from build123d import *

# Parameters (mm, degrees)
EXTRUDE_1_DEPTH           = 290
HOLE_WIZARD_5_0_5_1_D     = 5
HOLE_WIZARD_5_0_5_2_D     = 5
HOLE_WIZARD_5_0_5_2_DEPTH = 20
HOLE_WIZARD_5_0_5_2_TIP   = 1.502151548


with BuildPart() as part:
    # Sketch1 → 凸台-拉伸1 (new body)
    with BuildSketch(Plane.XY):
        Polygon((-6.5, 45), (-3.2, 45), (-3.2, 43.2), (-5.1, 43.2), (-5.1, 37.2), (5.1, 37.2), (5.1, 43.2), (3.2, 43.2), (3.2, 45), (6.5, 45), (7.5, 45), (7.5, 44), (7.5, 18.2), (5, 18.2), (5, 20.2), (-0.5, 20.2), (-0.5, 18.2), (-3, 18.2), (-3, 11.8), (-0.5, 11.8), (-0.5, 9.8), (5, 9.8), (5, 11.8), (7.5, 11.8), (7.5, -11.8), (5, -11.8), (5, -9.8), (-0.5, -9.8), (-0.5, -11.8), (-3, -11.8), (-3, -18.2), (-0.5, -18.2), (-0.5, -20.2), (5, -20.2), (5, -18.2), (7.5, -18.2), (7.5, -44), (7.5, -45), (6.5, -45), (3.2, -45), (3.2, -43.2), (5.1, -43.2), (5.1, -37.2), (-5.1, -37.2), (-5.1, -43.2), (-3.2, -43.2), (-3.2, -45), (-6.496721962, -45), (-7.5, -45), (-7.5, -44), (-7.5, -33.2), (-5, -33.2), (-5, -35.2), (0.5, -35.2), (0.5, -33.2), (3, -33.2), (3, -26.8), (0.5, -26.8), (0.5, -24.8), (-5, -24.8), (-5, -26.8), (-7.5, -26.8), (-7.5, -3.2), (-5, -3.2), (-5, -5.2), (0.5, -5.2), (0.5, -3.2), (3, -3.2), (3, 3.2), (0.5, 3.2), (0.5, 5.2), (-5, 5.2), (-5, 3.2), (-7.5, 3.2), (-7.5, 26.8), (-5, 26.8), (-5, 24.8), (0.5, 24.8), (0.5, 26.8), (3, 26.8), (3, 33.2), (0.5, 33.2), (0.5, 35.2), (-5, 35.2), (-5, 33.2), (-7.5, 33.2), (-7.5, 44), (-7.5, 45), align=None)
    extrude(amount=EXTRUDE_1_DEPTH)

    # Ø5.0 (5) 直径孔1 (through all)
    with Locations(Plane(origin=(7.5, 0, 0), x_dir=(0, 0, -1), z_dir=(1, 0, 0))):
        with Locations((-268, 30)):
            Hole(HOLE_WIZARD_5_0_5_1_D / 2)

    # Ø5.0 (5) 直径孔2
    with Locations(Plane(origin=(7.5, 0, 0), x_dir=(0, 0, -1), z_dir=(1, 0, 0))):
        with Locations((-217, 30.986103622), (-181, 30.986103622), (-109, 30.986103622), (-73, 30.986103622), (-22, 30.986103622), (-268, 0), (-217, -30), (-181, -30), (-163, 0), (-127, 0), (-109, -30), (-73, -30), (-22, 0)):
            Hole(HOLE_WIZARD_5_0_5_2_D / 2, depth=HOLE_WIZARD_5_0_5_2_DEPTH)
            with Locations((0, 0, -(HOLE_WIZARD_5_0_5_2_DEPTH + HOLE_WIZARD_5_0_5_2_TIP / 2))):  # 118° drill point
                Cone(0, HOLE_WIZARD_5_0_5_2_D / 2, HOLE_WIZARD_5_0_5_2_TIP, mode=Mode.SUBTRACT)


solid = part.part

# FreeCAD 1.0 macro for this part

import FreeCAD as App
import Part
import Sketcher

V = App.Vector
Q = App.Units.Quantity

doc = App.newDocument("Part")
body = doc.addObject("PartDesign::Body", "Body")

sketch1 = doc.addObject("Sketcher::SketchObject", "Sketch")
body.addObject(sketch1)
sketch1.AttachmentSupport = (doc.XY_Plane, [""])
sketch1.MapMode = "FlatFace"
sketch1.addGeometry([
    Part.LineSegment(V(-3.2, 45, 0), V(-7.5, 45, 0)),
    Part.LineSegment(V(-7.5, 45, 0), V(-7.5, 33.2, 0)),
    Part.LineSegment(V(-7.5, 33.2, 0), V(-5, 33.2, 0)),
    Part.LineSegment(V(-5, 33.2, 0), V(-5, 35.2, 0)),
    Part.LineSegment(V(-5, 35.2, 0), V(0.5, 35.2, 0)),
    Part.LineSegment(V(0.5, 35.2, 0), V(0.5, 33.2, 0)),
    Part.LineSegment(V(0.5, 33.2, 0), V(3, 33.2, 0)),
    Part.LineSegment(V(3, 33.2, 0), V(3, 26.8, 0)),
    Part.LineSegment(V(3, 26.8, 0), V(0.5, 26.8, 0)),
    Part.LineSegment(V(0.5, 26.8, 0), V(0.5, 24.8, 0)),
    Part.LineSegment(V(0.5, 24.8, 0), V(-5, 24.8, 0)),
    Part.LineSegment(V(-5, 24.8, 0), V(-5, 26.8, 0)),
    Part.LineSegment(V(-5, 26.8, 0), V(-7.5, 26.8, 0)),
    Part.LineSegment(V(-7.5, 26.8, 0), V(-7.5, 3.2, 0)),
    Part.LineSegment(V(-7.5, 3.2, 0), V(-5, 3.2, 0)),
    Part.LineSegment(V(-5, 3.2, 0), V(-5, 5.2, 0)),
    Part.LineSegment(V(-5, 5.2, 0), V(0.5, 5.2, 0)),
    Part.LineSegment(V(0.5, 5.2, 0), V(0.5, 3.2, 0)),
    Part.LineSegment(V(0.5, 3.2, 0), V(3, 3.2, 0)),
    Part.LineSegment(V(3, 3.2, 0), V(3, -3.2, 0)),
    Part.LineSegment(V(3, -3.2, 0), V(0.5, -3.2, 0)),
    Part.LineSegment(V(0.5, -3.2, 0), V(0.5, -5.2, 0)),
    Part.LineSegment(V(0.5, -5.2, 0), V(-5, -5.2, 0)),
    Part.LineSegment(V(-5, -5.2, 0), V(-5, -3.2, 0)),
    Part.LineSegment(V(-5, -3.2, 0), V(-7.5, -3.2, 0)),
    Part.LineSegment(V(-7.5, -3.2, 0), V(-7.5, -26.8, 0)),
    Part.LineSegment(V(-7.5, -26.8, 0), V(-5, -26.8, 0)),
    Part.LineSegment(V(-5, -26.8, 0), V(-5, -24.8, 0)),
    Part.LineSegment(V(-5, -24.8, 0), V(0.5, -24.8, 0)),
    Part.LineSegment(V(0.5, -24.8, 0), V(0.5, -26.8, 0)),
    Part.LineSegment(V(0.5, -26.8, 0), V(3, -26.8, 0)),
    Part.LineSegment(V(3, -26.8, 0), V(3, -33.2, 0)),
    Part.LineSegment(V(3, -33.2, 0), V(0.5, -33.2, 0)),
    Part.LineSegment(V(0.5, -33.2, 0), V(0.5, -35.2, 0)),
    Part.LineSegment(V(0.5, -35.2, 0), V(-5, -35.2, 0)),
    Part.LineSegment(V(-5, -35.2, 0), V(-5, -33.2, 0)),
    Part.LineSegment(V(-5, -33.2, 0), V(-7.5, -33.2, 0)),
    Part.LineSegment(V(-7.5, -33.2, 0), V(-7.5, -45, 0)),
    Part.LineSegment(V(-7.5, -45, 0), V(-3.2, -45, 0)),
    Part.LineSegment(V(-3.2, -45, 0), V(-3.2, -43.2, 0)),
    Part.LineSegment(V(-3.2, -43.2, 0), V(-5.1, -43.2, 0)),
    Part.LineSegment(V(-5.1, -43.2, 0), V(-5.1, -37.2, 0)),
    Part.LineSegment(V(-5.1, -37.2, 0), V(5.1, -37.2, 0)),
    Part.LineSegment(V(5.1, -37.2, 0), V(5.1, -43.2, 0)),
    Part.LineSegment(V(5.1, -43.2, 0), V(3.2, -43.2, 0)),
    Part.LineSegment(V(3.2, -43.2, 0), V(3.2, -45, 0)),
    Part.LineSegment(V(3.2, -45, 0), V(7.5, -45, 0)),
    Part.LineSegment(V(7.5, -45, 0), V(7.5, -18.2, 0)),
    Part.LineSegment(V(7.5, -18.2, 0), V(5, -18.2, 0)),
    Part.LineSegment(V(5, -18.2, 0), V(5, -20.2, 0)),
    Part.LineSegment(V(5, -20.2, 0), V(-0.5, -20.2, 0)),
    Part.LineSegment(V(-0.5, -20.2, 0), V(-0.5, -18.2, 0)),
    Part.LineSegment(V(-0.5, -18.2, 0), V(-3, -18.2, 0)),
    Part.LineSegment(V(-3, -18.2, 0), V(-3, -11.8, 0)),
    Part.LineSegment(V(-3, -11.8, 0), V(-0.5, -11.8, 0)),
    Part.LineSegment(V(-0.5, -11.8, 0), V(-0.5, -9.8, 0)),
    Part.LineSegment(V(-0.5, -9.8, 0), V(5, -9.8, 0)),
    Part.LineSegment(V(5, -9.8, 0), V(5, -11.8, 0)),
    Part.LineSegment(V(5, -11.8, 0), V(7.5, -11.8, 0)),
    Part.LineSegment(V(7.5, -11.8, 0), V(7.5, 11.8, 0)),
    Part.LineSegment(V(7.5, 11.8, 0), V(5, 11.8, 0)),
    Part.LineSegment(V(5, 11.8, 0), V(5, 9.8, 0)),
    Part.LineSegment(V(5, 9.8, 0), V(-0.5, 9.8, 0)),
    Part.LineSegment(V(-0.5, 9.8, 0), V(-0.5, 11.8, 0)),
    Part.LineSegment(V(-0.5, 11.8, 0), V(-3, 11.8, 0)),
    Part.LineSegment(V(-3, 11.8, 0), V(-3, 18.2, 0)),
    Part.LineSegment(V(-3, 18.2, 0), V(-0.5, 18.2, 0)),
    Part.LineSegment(V(-0.5, 18.2, 0), V(-0.5, 20.2, 0)),
    Part.LineSegment(V(-0.5, 20.2, 0), V(5, 20.2, 0)),
    Part.LineSegment(V(5, 20.2, 0), V(5, 18.2, 0)),
    Part.LineSegment(V(5, 18.2, 0), V(7.5, 18.2, 0)),
    Part.LineSegment(V(7.5, 18.2, 0), V(7.5, 45, 0)),
    Part.LineSegment(V(7.5, 45, 0), V(3.2, 45, 0)),
    Part.LineSegment(V(3.2, 45, 0), V(3.2, 43.2, 0)),
    Part.LineSegment(V(3.2, 43.2, 0), V(5.1, 43.2, 0)),
    Part.LineSegment(V(5.1, 43.2, 0), V(5.1, 37.2, 0)),
    Part.LineSegment(V(5.1, 37.2, 0), V(-5.1, 37.2, 0)),
    Part.LineSegment(V(-5.1, 37.2, 0), V(-5.1, 43.2, 0)),
    Part.LineSegment(V(-5.1, 43.2, 0), V(-3.2, 43.2, 0)),
    Part.LineSegment(V(-3.2, 43.2, 0), V(-3.2, 45, 0)),
], False)
sketch1.addConstraint([
    Sketcher.Constraint("Coincident", 0, 2, 1, 1),
    Sketcher.Constraint("Coincident", 1, 2, 2, 1),
    Sketcher.Constraint("Coincident", 2, 2, 3, 1),
    Sketcher.Constraint("Coincident", 3, 2, 4, 1),
    Sketcher.Constraint("Coincident", 4, 2, 5, 1),
    Sketcher.Constraint("Coincident", 5, 2, 6, 1),
    Sketcher.Constraint("Coincident", 6, 2, 7, 1),
    Sketcher.Constraint("Coincident", 7, 2, 8, 1),
    Sketcher.Constraint("Coincident", 8, 2, 9, 1),
    Sketcher.Constraint("Coincident", 9, 2, 10, 1),
    Sketcher.Constraint("Coincident", 10, 2, 11, 1),
    Sketcher.Constraint("Coincident", 11, 2, 12, 1),
    Sketcher.Constraint("Coincident", 12, 2, 13, 1),
    Sketcher.Constraint("Coincident", 13, 2, 14, 1),
    Sketcher.Constraint("Coincident", 14, 2, 15, 1),
    Sketcher.Constraint("Coincident", 15, 2, 16, 1),
    Sketcher.Constraint("Coincident", 16, 2, 17, 1),
    Sketcher.Constraint("Coincident", 17, 2, 18, 1),
    Sketcher.Constraint("Coincident", 18, 2, 19, 1),
    Sketcher.Constraint("Coincident", 19, 2, 20, 1),
    Sketcher.Constraint("Coincident", 20, 2, 21, 1),
    Sketcher.Constraint("Coincident", 21, 2, 22, 1),
    Sketcher.Constraint("Coincident", 22, 2, 23, 1),
    Sketcher.Constraint("Coincident", 23, 2, 24, 1),
    Sketcher.Constraint("Coincident", 24, 2, 25, 1),
    Sketcher.Constraint("Coincident", 25, 2, 26, 1),
    Sketcher.Constraint("Coincident", 26, 2, 27, 1),
    Sketcher.Constraint("Coincident", 27, 2, 28, 1),
    Sketcher.Constraint("Coincident", 28, 2, 29, 1),
    Sketcher.Constraint("Coincident", 29, 2, 30, 1),
    Sketcher.Constraint("Coincident", 30, 2, 31, 1),
    Sketcher.Constraint("Coincident", 31, 2, 32, 1),
    Sketcher.Constraint("Coincident", 32, 2, 33, 1),
    Sketcher.Constraint("Coincident", 33, 2, 34, 1),
    Sketcher.Constraint("Coincident", 34, 2, 35, 1),
    Sketcher.Constraint("Coincident", 35, 2, 36, 1),
    Sketcher.Constraint("Coincident", 36, 2, 37, 1),
    Sketcher.Constraint("Coincident", 37, 2, 38, 1),
    Sketcher.Constraint("Coincident", 38, 2, 39, 1),
    Sketcher.Constraint("Coincident", 39, 2, 40, 1),
    Sketcher.Constraint("Coincident", 40, 2, 41, 1),
    Sketcher.Constraint("Coincident", 41, 2, 42, 1),
    Sketcher.Constraint("Coincident", 42, 2, 43, 1),
    Sketcher.Constraint("Coincident", 43, 2, 44, 1),
    Sketcher.Constraint("Coincident", 44, 2, 45, 1),
    Sketcher.Constraint("Coincident", 45, 2, 46, 1),
    Sketcher.Constraint("Coincident", 46, 2, 47, 1),
    Sketcher.Constraint("Coincident", 47, 2, 48, 1),
    Sketcher.Constraint("Coincident", 48, 2, 49, 1),
    Sketcher.Constraint("Coincident", 49, 2, 50, 1),
    Sketcher.Constraint("Coincident", 50, 2, 51, 1),
    Sketcher.Constraint("Coincident", 51, 2, 52, 1),
    Sketcher.Constraint("Coincident", 52, 2, 53, 1),
    Sketcher.Constraint("Coincident", 53, 2, 54, 1),
    Sketcher.Constraint("Coincident", 54, 2, 55, 1),
    Sketcher.Constraint("Coincident", 55, 2, 56, 1),
    Sketcher.Constraint("Coincident", 56, 2, 57, 1),
    Sketcher.Constraint("Coincident", 57, 2, 58, 1),
    Sketcher.Constraint("Coincident", 58, 2, 59, 1),
    Sketcher.Constraint("Coincident", 59, 2, 60, 1),
    Sketcher.Constraint("Coincident", 60, 2, 61, 1),
    Sketcher.Constraint("Coincident", 61, 2, 62, 1),
    Sketcher.Constraint("Coincident", 62, 2, 63, 1),
    Sketcher.Constraint("Coincident", 63, 2, 64, 1),
    Sketcher.Constraint("Coincident", 64, 2, 65, 1),
    Sketcher.Constraint("Coincident", 65, 2, 66, 1),
    Sketcher.Constraint("Coincident", 66, 2, 67, 1),
    Sketcher.Constraint("Coincident", 67, 2, 68, 1),
    Sketcher.Constraint("Coincident", 68, 2, 69, 1),
    Sketcher.Constraint("Coincident", 69, 2, 70, 1),
    Sketcher.Constraint("Coincident", 70, 2, 71, 1),
    Sketcher.Constraint("Coincident", 71, 2, 72, 1),
    Sketcher.Constraint("Coincident", 72, 2, 73, 1),
    Sketcher.Constraint("Coincident", 73, 2, 74, 1),
    Sketcher.Constraint("Coincident", 74, 2, 75, 1),
    Sketcher.Constraint("Coincident", 75, 2, 76, 1),
    Sketcher.Constraint("Coincident", 76, 2, 77, 1),
    Sketcher.Constraint("Coincident", 77, 2, 78, 1),
    Sketcher.Constraint("Coincident", 78, 2, 79, 1),
    Sketcher.Constraint("Coincident", 79, 2, 0, 1),
    Sketcher.Constraint("Horizontal", 0),
    Sketcher.Constraint("Vertical", 1),
    Sketcher.Constraint("Horizontal", 2),
    Sketcher.Constraint("Vertical", 3),
    Sketcher.Constraint("Horizontal", 4),
    Sketcher.Constraint("Vertical", 5),
    Sketcher.Constraint("Horizontal", 6),
    Sketcher.Constraint("Vertical", 7),
    Sketcher.Constraint("Horizontal", 8),
    Sketcher.Constraint("Vertical", 9),
    Sketcher.Constraint("Horizontal", 10),
    Sketcher.Constraint("Vertical", 11),
    Sketcher.Constraint("Horizontal", 12),
    Sketcher.Constraint("Vertical", 13),
    Sketcher.Constraint("Horizontal", 14),
    Sketcher.Constraint("Vertical", 15),
    Sketcher.Constraint("Horizontal", 16),
    Sketcher.Constraint("Vertical", 17),
    Sketcher.Constraint("Horizontal", 18),
    Sketcher.Constraint("Vertical", 19),
    Sketcher.Constraint("Horizontal", 20),
    Sketcher.Constraint("Vertical", 21),
    Sketcher.Constraint("Horizontal", 22),
    Sketcher.Constraint("Vertical", 23),
    Sketcher.Constraint("Horizontal", 24),
    Sketcher.Constraint("Vertical", 25),
    Sketcher.Constraint("Horizontal", 26),
    Sketcher.Constraint("Vertical", 27),
    Sketcher.Constraint("Horizontal", 28),
    Sketcher.Constraint("Vertical", 29),
    Sketcher.Constraint("Horizontal", 30),
    Sketcher.Constraint("Vertical", 31),
    Sketcher.Constraint("Horizontal", 32),
    Sketcher.Constraint("Vertical", 33),
    Sketcher.Constraint("Horizontal", 34),
    Sketcher.Constraint("Vertical", 35),
    Sketcher.Constraint("Horizontal", 36),
    Sketcher.Constraint("Vertical", 37),
    Sketcher.Constraint("Horizontal", 38),
    Sketcher.Constraint("Vertical", 39),
    Sketcher.Constraint("Horizontal", 40),
    Sketcher.Constraint("Vertical", 41),
    Sketcher.Constraint("Horizontal", 42),
    Sketcher.Constraint("Vertical", 43),
    Sketcher.Constraint("Horizontal", 44),
    Sketcher.Constraint("Vertical", 45),
    Sketcher.Constraint("Horizontal", 46),
    Sketcher.Constraint("Vertical", 47),
    Sketcher.Constraint("Horizontal", 48),
    Sketcher.Constraint("Vertical", 49),
    Sketcher.Constraint("Horizontal", 50),
    Sketcher.Constraint("Vertical", 51),
    Sketcher.Constraint("Horizontal", 52),
    Sketcher.Constraint("Vertical", 53),
    Sketcher.Constraint("Horizontal", 54),
    Sketcher.Constraint("Vertical", 55),
    Sketcher.Constraint("Horizontal", 56),
    Sketcher.Constraint("Vertical", 57),
    Sketcher.Constraint("Horizontal", 58),
    Sketcher.Constraint("Vertical", 59),
    Sketcher.Constraint("Horizontal", 60),
    Sketcher.Constraint("Vertical", 61),
    Sketcher.Constraint("Horizontal", 62),
    Sketcher.Constraint("Vertical", 63),
    Sketcher.Constraint("Horizontal", 64),
    Sketcher.Constraint("Vertical", 65),
    Sketcher.Constraint("Horizontal", 66),
    Sketcher.Constraint("Vertical", 67),
    Sketcher.Constraint("Horizontal", 68),
    Sketcher.Constraint("Vertical", 69),
    Sketcher.Constraint("Horizontal", 70),
    Sketcher.Constraint("Vertical", 71),
    Sketcher.Constraint("Horizontal", 72),
    Sketcher.Constraint("Vertical", 73),
    Sketcher.Constraint("Horizontal", 74),
    Sketcher.Constraint("Vertical", 75),
    Sketcher.Constraint("Horizontal", 76),
    Sketcher.Constraint("Vertical", 77),
    Sketcher.Constraint("Horizontal", 78),
    Sketcher.Constraint("Vertical", 79),
    Sketcher.Constraint("Symmetric", 0, 2, 46, 2, -1, 1),
    Sketcher.Constraint("Symmetric", 37, 2, 71, 2, -1, 1),
    Sketcher.Constraint("Symmetric", 39, 2, 73, 2, -1, 1),
    Sketcher.Constraint("Symmetric", 41, 2, 75, 2, -1, 1),
    Sketcher.Constraint("Symmetric", 43, 2, 77, 2, -1, 1),
    Sketcher.Constraint("Symmetric", 40, 2, 43, 2, -2),
    Sketcher.Constraint("Symmetric", 38, 2, 45, 2, -2),
    Sketcher.Constraint("Symmetric", 17, 2, 20, 2, -1),
    Sketcher.Constraint("Symmetric", 15, 2, 22, 2, -1),
    Sketcher.Constraint("Symmetric", 13, 2, 24, 2, -1),
    Sketcher.Constraint("Symmetric", 11, 2, 26, 2, -1),
    Sketcher.Constraint("Symmetric", 9, 2, 28, 2, -1),
    Sketcher.Constraint("Symmetric", 7, 2, 30, 2, -1),
    Sketcher.Constraint("Symmetric", 5, 2, 32, 2, -1),
    Sketcher.Constraint("Symmetric", 3, 2, 34, 2, -1),
    Sketcher.Constraint("Symmetric", 1, 2, 36, 2, -1),
    Sketcher.Constraint("Symmetric", 57, 2, 60, 2, -1),
    Sketcher.Constraint("Symmetric", 55, 2, 62, 2, -1),
    Sketcher.Constraint("Symmetric", 53, 2, 64, 2, -1),
    Sketcher.Constraint("Symmetric", 51, 2, 66, 2, -1),
    Sketcher.Constraint("Symmetric", 49, 2, 68, 2, -1),
    Sketcher.Constraint("Horizontal", 2, 2, 5, 2),
    Sketcher.Constraint("Horizontal", 8, 2, 11, 2),
    Sketcher.Constraint("Horizontal", 14, 2, 17, 2),
    Sketcher.Constraint("Horizontal", 48, 2, 51, 2),
    Sketcher.Constraint("Horizontal", 54, 2, 57, 2),
    Sketcher.Constraint("Horizontal", 66, 2, 69, 2),
    Sketcher.Constraint("Vertical", 5, 2, 8, 2),
    Sketcher.Constraint("Vertical", 3, 2, 10, 2),
    Sketcher.Constraint("Vertical", 1, 2, 12, 2),
    Sketcher.Constraint("Vertical", 11, 2, 14, 2),
    Sketcher.Constraint("Vertical", 9, 2, 16, 2),
    Sketcher.Constraint("Vertical", 7, 2, 18, 2),
    Sketcher.Constraint("Vertical", 51, 2, 54, 2),
    Sketcher.Constraint("Vertical", 49, 2, 56, 2),
    Sketcher.Constraint("Vertical", 47, 2, 58, 2),
    Sketcher.Constraint("Vertical", 39, 2, 78, 2),
    Sketcher.Constraint("Equal", 2, 6),
    Sketcher.Constraint("Equal", 36, 48),
    Sketcher.Constraint("Equal", 34, 50),
    Sketcher.Constraint("Equal", 48, 52),
    Sketcher.Constraint("Equal", 5, 9),
    Sketcher.Constraint("Equal", 11, 15),
    Sketcher.Constraint("Equal", 7, 19),
    Sketcher.Constraint("Equal", 35, 49),
    Sketcher.Constraint("Equal", 31, 53),
    Sketcher.Constraint("Equal", 51, 55),
    Sketcher.Constraint("Equal", 25, 59),
    Sketcher.Constraint("DistanceY", 3, 1, 3, 2, Q("2 mm")),
    Sketcher.Constraint("DistanceY", 41, 1, 41, 2, Q("6 mm")),
    Sketcher.Constraint("DistanceX", 0, 2, 0, 1, Q("4.3 mm")),
    Sketcher.Constraint("DistanceX", 2, 1, 2, 2, Q("2.5 mm")),
    Sketcher.Constraint("DistanceX", 4, 1, 4, 2, Q("5.5 mm")),
    Sketcher.Constraint("DistanceX", 40, 2, 40, 1, Q("1.9 mm")),
    Sketcher.Constraint("DistanceX", 42, 1, 42, 2, Q("10.2 mm")),
    Sketcher.Constraint("DistanceY", 1, 2, 1, 1, Q("11.8 mm")),
    Sketcher.Constraint("DistanceY", 7, 2, 7, 1, Q("6.4 mm")),
    Sketcher.Constraint("DistanceY", 13, 2, 13, 1, Q("23.6 mm")),
    Sketcher.Constraint("DistanceY", 39, 1, 39, 2, Q("1.8 mm")),
])
pad1 = doc.addObject("PartDesign::Pad", "Pad")
body.addObject(pad1)
pad1.Profile = sketch1
pad1.Length = 290

sketch2 = doc.addObject("Sketcher::SketchObject", "Sketch001")
body.addObject(sketch2)
sketch2.AttachmentSupport = (doc.YZ_Plane, [""])
sketch2.MapMode = "FlatFace"
sketch2.AttachmentOffset = App.Placement(V(0, 0, 7.5), App.Rotation())
sketch2.addGeometry(Part.Circle(V(30, 268, 0), V(0, 0, 1), 2.5), False)
sketch2.addConstraint([
    Sketcher.Constraint("Diameter", 0, Q("5 mm")),
    Sketcher.Constraint("DistanceX", -1, 1, 0, 3, Q("30 mm")),
    Sketcher.Constraint("DistanceY", -1, 1, 0, 3, Q("268 mm")),
])
doc.recompute()
hole = doc.addObject("PartDesign::Hole", "Hole")
body.addObject(hole)
hole.Profile = sketch2
hole.ThreadType = "None"
hole.Diameter = 5
hole.DepthType = "ThroughAll"

sketch3 = doc.addObject("Sketcher::SketchObject", "Sketch002")
body.addObject(sketch3)
sketch3.AttachmentSupport = (doc.YZ_Plane, [""])
sketch3.MapMode = "FlatFace"
sketch3.AttachmentOffset = App.Placement(V(0, 0, 7.5), App.Rotation())
sketch3.addGeometry([
    Part.Circle(V(31, 217, 0), V(0, 0, 1), 2.5),
    Part.Circle(V(31, 181, 0), V(0, 0, 1), 2.5),
    Part.Circle(V(31, 109, 0), V(0, 0, 1), 2.5),
    Part.Circle(V(31, 73, 0), V(0, 0, 1), 2.5),
    Part.Circle(V(31, 22, 0), V(0, 0, 1), 2.5),
    Part.Circle(V(0, 268, 0), V(0, 0, 1), 2.5),
    Part.Circle(V(-30, 217, 0), V(0, 0, 1), 2.5),
    Part.Circle(V(-30, 181, 0), V(0, 0, 1), 2.5),
    Part.Circle(V(0, 163, 0), V(0, 0, 1), 2.5),
    Part.Circle(V(0, 127, 0), V(0, 0, 1), 2.5),
    Part.Circle(V(-30, 109, 0), V(0, 0, 1), 2.5),
    Part.Circle(V(-30, 73, 0), V(0, 0, 1), 2.5),
    Part.Circle(V(0, 22, 0), V(0, 0, 1), 2.5),
], False)
sketch3.addConstraint([
    Sketcher.Constraint("Equal", 0, 1),
    Sketcher.Constraint("Equal", 1, 2),
    Sketcher.Constraint("Equal", 2, 3),
    Sketcher.Constraint("Equal", 3, 4),
    Sketcher.Constraint("Equal", 4, 5),
    Sketcher.Constraint("Equal", 5, 6),
    Sketcher.Constraint("Equal", 6, 7),
    Sketcher.Constraint("Equal", 7, 8),
    Sketcher.Constraint("Equal", 8, 9),
    Sketcher.Constraint("Equal", 9, 10),
    Sketcher.Constraint("Equal", 10, 11),
    Sketcher.Constraint("Equal", 11, 12),
    Sketcher.Constraint("PointOnObject", 5, 3, -2),
    Sketcher.Constraint("PointOnObject", 8, 3, -2),
    Sketcher.Constraint("PointOnObject", 9, 3, -2),
    Sketcher.Constraint("PointOnObject", 12, 3, -2),
    Sketcher.Constraint("Horizontal", 0, 3, 6, 3),
    Sketcher.Constraint("Horizontal", 1, 3, 7, 3),
    Sketcher.Constraint("Horizontal", 2, 3, 10, 3),
    Sketcher.Constraint("Horizontal", 3, 3, 11, 3),
    Sketcher.Constraint("Horizontal", 4, 3, 12, 3),
    Sketcher.Constraint("Vertical", 0, 3, 1, 3),
    Sketcher.Constraint("Vertical", 1, 3, 2, 3),
    Sketcher.Constraint("Vertical", 2, 3, 3, 3),
    Sketcher.Constraint("Vertical", 3, 3, 4, 3),
    Sketcher.Constraint("Vertical", 6, 3, 7, 3),
    Sketcher.Constraint("Vertical", 7, 3, 10, 3),
    Sketcher.Constraint("Vertical", 10, 3, 11, 3),
    Sketcher.Constraint("Diameter", 0, Q("5 mm")),
    Sketcher.Constraint("DistanceY", -1, 1, 0, 3, Q("217 mm")),
    Sketcher.Constraint("DistanceY", -1, 1, 1, 3, Q("181 mm")),
    Sketcher.Constraint("DistanceY", -1, 1, 2, 3, Q("109 mm")),
    Sketcher.Constraint("DistanceY", -1, 1, 3, 3, Q("73 mm")),
    Sketcher.Constraint("DistanceY", -1, 1, 4, 3, Q("22 mm")),
    Sketcher.Constraint("DistanceY", -1, 1, 5, 3, Q("268 mm")),
    Sketcher.Constraint("DistanceX", 6, 3, -1, 1, Q("30 mm")),
    Sketcher.Constraint("DistanceY", -1, 1, 8, 3, Q("163 mm")),
    Sketcher.Constraint("DistanceY", -1, 1, 9, 3, Q("127 mm")),
    Sketcher.Constraint("DistanceX", -1, 1, 0, 3, Q("30.986104 mm")),
])
doc.recompute()
hole2 = doc.addObject("PartDesign::Hole", "Hole001")
body.addObject(hole2)
hole2.Profile = sketch3
hole2.ThreadType = "None"
hole2.Diameter = 5
hole2.DepthType = "Dimension"
hole2.Depth = 20
hole2.DrillPoint = "Angled"
hole2.DrillPointAngle = 118

doc.recompute()
